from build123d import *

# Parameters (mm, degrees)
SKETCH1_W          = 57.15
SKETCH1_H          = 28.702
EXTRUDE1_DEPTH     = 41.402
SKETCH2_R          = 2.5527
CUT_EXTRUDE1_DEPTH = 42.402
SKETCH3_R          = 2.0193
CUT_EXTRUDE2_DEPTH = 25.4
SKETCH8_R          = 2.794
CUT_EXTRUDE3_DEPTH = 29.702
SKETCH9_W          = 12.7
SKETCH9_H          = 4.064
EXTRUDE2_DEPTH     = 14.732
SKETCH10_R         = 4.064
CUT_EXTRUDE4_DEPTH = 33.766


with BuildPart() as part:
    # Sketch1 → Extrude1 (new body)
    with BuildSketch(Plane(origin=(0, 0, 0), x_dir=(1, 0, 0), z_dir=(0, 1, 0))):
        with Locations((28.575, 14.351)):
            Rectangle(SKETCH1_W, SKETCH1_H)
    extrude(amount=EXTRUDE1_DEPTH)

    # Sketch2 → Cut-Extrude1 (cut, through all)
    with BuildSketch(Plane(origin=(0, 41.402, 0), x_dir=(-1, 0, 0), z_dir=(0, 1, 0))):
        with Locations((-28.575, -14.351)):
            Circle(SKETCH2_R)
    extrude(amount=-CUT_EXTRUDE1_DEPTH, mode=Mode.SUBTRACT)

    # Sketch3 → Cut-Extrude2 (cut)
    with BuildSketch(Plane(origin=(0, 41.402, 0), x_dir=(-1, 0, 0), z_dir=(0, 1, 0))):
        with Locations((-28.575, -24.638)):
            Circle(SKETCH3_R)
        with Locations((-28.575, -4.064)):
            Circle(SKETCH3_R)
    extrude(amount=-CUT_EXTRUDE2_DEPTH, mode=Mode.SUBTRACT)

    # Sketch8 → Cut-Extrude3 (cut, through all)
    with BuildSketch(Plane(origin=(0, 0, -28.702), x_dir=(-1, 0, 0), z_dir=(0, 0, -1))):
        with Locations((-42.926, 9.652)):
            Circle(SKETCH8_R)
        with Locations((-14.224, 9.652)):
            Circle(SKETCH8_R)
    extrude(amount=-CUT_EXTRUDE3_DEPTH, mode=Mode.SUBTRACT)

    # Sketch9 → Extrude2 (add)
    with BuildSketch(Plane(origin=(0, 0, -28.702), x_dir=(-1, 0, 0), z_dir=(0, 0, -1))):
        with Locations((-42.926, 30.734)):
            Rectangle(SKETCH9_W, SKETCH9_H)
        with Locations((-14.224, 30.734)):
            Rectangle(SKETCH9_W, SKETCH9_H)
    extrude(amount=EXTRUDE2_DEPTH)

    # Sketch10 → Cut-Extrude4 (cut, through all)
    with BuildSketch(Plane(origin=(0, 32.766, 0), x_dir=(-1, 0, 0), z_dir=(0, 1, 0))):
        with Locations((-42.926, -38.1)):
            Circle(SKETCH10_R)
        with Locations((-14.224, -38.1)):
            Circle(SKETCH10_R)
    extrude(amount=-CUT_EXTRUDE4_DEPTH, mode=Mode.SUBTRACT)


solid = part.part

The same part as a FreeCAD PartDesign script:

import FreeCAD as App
import Part
import Sketcher

V = App.Vector
Q = App.Units.Quantity


def add_polygon(sketch, points):
    """Adds a closed chain of lines whose ends are joined by coincident constraints."""
    first, n = sketch.GeometryCount, len(points)
    for a, b in zip(points, points[1:] + points[:1]):
        sketch.addGeometry(Part.LineSegment(App.Vector(*a, 0), App.Vector(*b, 0)), False)
    for i in range(n):
        sketch.addConstraint(Sketcher.Constraint("Coincident", first + i, 2, first + (i + 1) % n, 1))

doc = App.newDocument("Part")
body = doc.addObject("PartDesign::Body", "Body")

# Sketch on XZ plane
sketch1 = body.newObject("Sketcher::SketchObject", "Sketch")
sketch1.AttachmentSupport = (doc.getObject("XZ_Plane"), [""])
sketch1.MapMode = "FlatFace"
add_polygon(sketch1, [(0, -28.702), (0, 0), (57.15, 0), (57.15, -28.702)])  # lines 0-3
sketch1.addConstraint([
    Sketcher.Constraint("Vertical", 0),
    Sketcher.Constraint("Horizontal", 1),
    Sketcher.Constraint("Vertical", 2),
    Sketcher.Constraint("Horizontal", 3),
    Sketcher.Constraint("Coincident", 0, 2, -1, 1),
    Sketcher.Constraint("DistanceX", 1, 1, 1, 2, Q("2.25 in")),
    Sketcher.Constraint("DistanceY", 0, 1, 0, 2, Q("1.13 in")),
])
pad1 = body.newObject("PartDesign::Pad", "Pad")
pad1.Profile = sketch1
pad1.Length = Q("1.63 in")
pad1.Reversed = True

# Sketch on XZ plane
sketch2 = body.newObject("Sketcher::SketchObject", "Sketch001")
sketch2.AttachmentSupport = (doc.getObject("XZ_Plane"), [""])
sketch2.MapMode = "FlatFace"
sketch2.AttachmentOffset = App.Placement(V(0, 0, -1.63 * 25.4), App.Rotation())
sketch2.addGeometry(Part.Circle(V(28.575, -14.351, 0), V(0, 0, 1), 2.5527), False)
sketch2.addConstraint([
    Sketcher.Constraint("Diameter", 0, Q("0.201 in")),
    Sketcher.Constraint("DistanceX", -1, 1, 0, 3, Q("1.125 in")),
    Sketcher.Constraint("DistanceY", 0, 3, -1, 1, Q("0.565 in")),
])
pocket1 = body.newObject("PartDesign::Pocket", "Pocket")
pocket1.Profile = sketch2
pocket1.Type = "ThroughAll"
pocket1.Reversed = True

# Sketch on XZ plane
sketch3 = body.newObject("Sketcher::SketchObject", "Sketch002")
sketch3.AttachmentSupport = (doc.getObject("XZ_Plane"), [""])
sketch3.MapMode = "FlatFace"
sketch3.AttachmentOffset = App.Placement(V(0, 0, -1.63 * 25.4), App.Rotation())
sketch3.addGeometry([
    Part.Circle(V(28.575, -24.638, 0), V(0, 0, 1), 2.0193),
    Part.Circle(V(28.575, -4.064, 0), V(0, 0, 1), 2.0193),
], False)
sketch3.addConstraint([
    Sketcher.Constraint("Equal", 0, 1),
    Sketcher.Constraint("Vertical", 0, 3, 1, 3),
    Sketcher.Constraint("Diameter", 0, Q("0.159 in")),
    Sketcher.Constraint("DistanceY", 0, 3, -1, 1, Q("0.97 in")),
    Sketcher.Constraint("DistanceY", 1, 3, -1, 1, Q("0.16 in")),
    Sketcher.Constraint("DistanceX", -1, 1, 0, 3, Q("1.125 in")),
])
pocket2 = body.newObject("PartDesign::Pocket", "Pocket001")
pocket2.Profile = sketch3
pocket2.Length = Q("1 in")
pocket2.Reversed = True

# Sketch on XY plane
sketch4 = body.newObject("Sketcher::SketchObject", "Sketch003")
sketch4.AttachmentSupport = (doc.getObject("XY_Plane"), [""])
sketch4.MapMode = "FlatFace"
sketch4.AttachmentOffset = App.Placement(V(0, 0, -1.13 * 25.4), App.Rotation())
sketch4.addGeometry([
    Part.Circle(V(42.926, 9.652, 0), V(0, 0, 1), 2.794),
    Part.Circle(V(14.224, 9.652, 0), V(0, 0, 1), 2.794),
], False)
sketch4.addConstraint([
    Sketcher.Constraint("Equal", 0, 1),
    Sketcher.Constraint("Horizontal", 0, 3, 1, 3),
    Sketcher.Constraint("Diameter", 0, Q("0.22 in")),
    Sketcher.Constraint("DistanceX", -1, 1, 0, 3, Q("1.69 in")),
    Sketcher.Constraint("DistanceY", -1, 1, 0, 3, Q("0.38 in")),
    Sketcher.Constraint("DistanceX", -1, 1, 1, 3, Q("0.56 in")),
])
pocket3 = body.newObject("PartDesign::Pocket", "Pocket002")
pocket3.Profile = sketch4
pocket3.Type = "ThroughAll"
pocket3.Reversed = True

# Sketch on XY plane
sketch5 = body.newObject("Sketcher::SketchObject", "Sketch004")
sketch5.AttachmentSupport = (doc.getObject("XY_Plane"), [""])
sketch5.MapMode = "FlatFace"
sketch5.AttachmentOffset = App.Placement(V(0, 0, -1.13 * 25.4), App.Rotation())
add_polygon(sketch5, [(49.276, 32.766), (49.276, 28.702), (36.576, 28.702), (36.576, 32.766)])  # lines 0-3
add_polygon(sketch5, [(20.574, 32.766), (20.574, 28.702), (7.874, 28.702), (7.874, 32.766)])  # lines 4-7
sketch5.addConstraint([
    Sketcher.Constraint("Vertical", 0),
    Sketcher.Constraint("Horizontal", 1),
    Sketcher.Constraint("Vertical", 2),
    Sketcher.Constraint("Horizontal", 3),
    Sketcher.Constraint("Vertical", 4),
    Sketcher.Constraint("Horizontal", 5),
    Sketcher.Constraint("Vertical", 6),
    Sketcher.Constraint("Horizontal", 7),
    Sketcher.Constraint("Horizontal", 1, 2, 4, 2),
    Sketcher.Constraint("Horizontal", 3, 2, 6, 2),
    Sketcher.Constraint("Equal", 3, 5),
    Sketcher.Constraint("DistanceX", 1, 2, 1, 1, Q("0.5 in")),
    Sketcher.Constraint("DistanceY", 0, 2, 0, 1, Q("0.16 in")),
    Sketcher.Constraint("DistanceX", -1, 1, 0, 2, Q("1.94 in")),
    Sketcher.Constraint("DistanceY", -1, 1, 0, 2, Q("1.13 in")),
    Sketcher.Constraint("DistanceX", -1, 1, 4, 2, Q("0.81 in")),
])
pad2 = body.newObject("PartDesign::Pad", "Pad001")
pad2.Profile = sketch5
pad2.Length = Q("0.58 in")
pad2.Reversed = True

# Sketch on XZ plane
sketch6 = body.newObject("Sketcher::SketchObject", "Sketch005")
sketch6.AttachmentSupport = (doc.getObject("XZ_Plane"), [""])
sketch6.MapMode = "FlatFace"
sketch6.AttachmentOffset = App.Placement(V(0, 0, -1.29 * 25.4), App.Rotation())
sketch6.addGeometry([
    Part.Circle(V(42.926, -38.1, 0), V(0, 0, 1), 4.064),
    Part.Circle(V(14.224, -38.1, 0), V(0, 0, 1), 4.064),
], False)
sketch6.addConstraint([
    Sketcher.Constraint("Equal", 0, 1),
    Sketcher.Constraint("Horizontal", 0, 3, 1, 3),
    Sketcher.Constraint("Diameter", 0, Q("0.32 in")),
    Sketcher.Constraint("DistanceY", 0, 3, -1, 1, Q("1.5 in")),
    Sketcher.Constraint("DistanceX", -1, 1, 0, 3, Q("1.69 in")),
    Sketcher.Constraint("DistanceX", -1, 1, 1, 3, Q("0.56 in")),
])
pocket4 = body.newObject("PartDesign::Pocket", "Pocket003")
pocket4.Profile = sketch6
pocket4.Type = "ThroughAll"
pocket4.Reversed = True

doc.recompute()
